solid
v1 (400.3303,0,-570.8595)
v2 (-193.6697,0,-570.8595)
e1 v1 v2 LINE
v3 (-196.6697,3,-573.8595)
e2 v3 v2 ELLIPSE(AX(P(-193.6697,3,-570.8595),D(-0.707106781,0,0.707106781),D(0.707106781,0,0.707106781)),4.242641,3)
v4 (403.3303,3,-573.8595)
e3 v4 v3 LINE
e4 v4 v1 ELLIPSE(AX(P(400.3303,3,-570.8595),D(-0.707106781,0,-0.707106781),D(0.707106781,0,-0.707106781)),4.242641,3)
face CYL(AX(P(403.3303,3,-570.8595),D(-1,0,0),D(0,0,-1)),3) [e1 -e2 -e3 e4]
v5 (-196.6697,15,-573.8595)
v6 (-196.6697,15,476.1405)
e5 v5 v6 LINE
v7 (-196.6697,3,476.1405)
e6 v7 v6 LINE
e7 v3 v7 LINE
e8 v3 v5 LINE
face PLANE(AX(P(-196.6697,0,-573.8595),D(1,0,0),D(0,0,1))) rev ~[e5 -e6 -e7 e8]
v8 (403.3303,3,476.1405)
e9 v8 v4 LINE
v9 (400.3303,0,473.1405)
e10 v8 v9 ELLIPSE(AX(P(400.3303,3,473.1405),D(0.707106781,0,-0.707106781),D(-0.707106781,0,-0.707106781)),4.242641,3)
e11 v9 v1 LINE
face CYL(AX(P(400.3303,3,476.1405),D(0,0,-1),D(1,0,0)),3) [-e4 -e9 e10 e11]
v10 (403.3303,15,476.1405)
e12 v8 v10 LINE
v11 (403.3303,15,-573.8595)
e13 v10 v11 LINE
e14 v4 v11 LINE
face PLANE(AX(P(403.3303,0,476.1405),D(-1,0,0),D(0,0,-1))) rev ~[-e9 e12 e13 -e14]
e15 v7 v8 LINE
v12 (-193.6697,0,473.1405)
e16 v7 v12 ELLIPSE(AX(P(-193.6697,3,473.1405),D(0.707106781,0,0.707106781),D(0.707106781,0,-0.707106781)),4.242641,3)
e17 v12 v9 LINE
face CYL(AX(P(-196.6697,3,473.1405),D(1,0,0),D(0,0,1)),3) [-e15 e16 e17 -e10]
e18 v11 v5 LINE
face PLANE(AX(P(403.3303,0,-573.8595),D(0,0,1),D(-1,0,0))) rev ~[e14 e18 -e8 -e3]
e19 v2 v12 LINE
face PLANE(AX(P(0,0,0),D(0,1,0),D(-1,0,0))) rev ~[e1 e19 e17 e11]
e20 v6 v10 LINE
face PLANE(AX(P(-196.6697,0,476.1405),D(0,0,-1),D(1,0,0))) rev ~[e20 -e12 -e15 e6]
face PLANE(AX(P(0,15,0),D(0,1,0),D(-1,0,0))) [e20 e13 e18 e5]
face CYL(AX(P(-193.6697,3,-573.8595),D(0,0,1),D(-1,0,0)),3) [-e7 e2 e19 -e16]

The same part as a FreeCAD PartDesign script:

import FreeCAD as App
import Part
import Sketcher

V = App.Vector


def edges_at(feature, points):
    """Names of the edges that pass closest to the given points."""
    edges = feature.Shape.Edges
    near = lambda p: min(range(len(edges)), key=lambda i: edges[i].distToShape(Part.Vertex(*p))[0])
    return sorted({f"Edge{near(p) + 1}" for p in points})


def add_polygon(sketch, points):
    """Adds a closed chain of lines whose ends are joined by coincident constraints."""
    first, n = sketch.GeometryCount, len(points)
    for a, b in zip(points, points[1:] + points[:1]):
        sketch.addGeometry(Part.LineSegment(App.Vector(*a, 0), App.Vector(*b, 0)), False)
    for i in range(n):
        sketch.addConstraint(Sketcher.Constraint("Coincident", first + i, 2, first + (i + 1) % n, 1))

doc = App.newDocument("Part")
body = doc.addObject("PartDesign::Body", "Body")

# Sketch on XZ plane
sketch1 = doc.addObject("Sketcher::SketchObject", "Sketch")
body.addObject(sketch1)
sketch1.AttachmentSupport = (doc.XZ_Plane, [""])
sketch1.MapMode = "FlatFace"
add_polygon(sketch1, [(-197, -574), (-197, 476), (403, 476), (403, -574)])  # lines 0-3
sketch1.addConstraint([
    Sketcher.Constraint("Vertical", 0),
    Sketcher.Constraint("Horizontal", 1),
    Sketcher.Constraint("Vertical", 2),
    Sketcher.Constraint("Horizontal", 3),
    Sketcher.Constraint("DistanceX", 1, 1, 1, 2, 600.0),
    Sketcher.Constraint("DistanceY", 0, 1, 0, 2, 1050.0),
    Sketcher.Constraint("DistanceX", 0, 2, -1, 1, 196.6697),
    Sketcher.Constraint("DistanceY", -1, 1, 0, 2, 476.1405),
])
pad1 = doc.addObject("PartDesign::Pad", "Pad")
body.addObject(pad1)
pad1.Profile = sketch1
pad1.Length = 15
pad1.Reversed = True
doc.recompute()

fillet = doc.addObject("PartDesign::Fillet", "Fillet")
body.addObject(fillet)
fillet.Base = (pad1, edges_at(pad1, [
    (403.33, 0, -48.859),
    (103.33, 0, 476.14),
    (-196.67, 0, -48.859),
    (103.33, 0, -573.86),
]))
fillet.Radius = 3

doc.recompute()
